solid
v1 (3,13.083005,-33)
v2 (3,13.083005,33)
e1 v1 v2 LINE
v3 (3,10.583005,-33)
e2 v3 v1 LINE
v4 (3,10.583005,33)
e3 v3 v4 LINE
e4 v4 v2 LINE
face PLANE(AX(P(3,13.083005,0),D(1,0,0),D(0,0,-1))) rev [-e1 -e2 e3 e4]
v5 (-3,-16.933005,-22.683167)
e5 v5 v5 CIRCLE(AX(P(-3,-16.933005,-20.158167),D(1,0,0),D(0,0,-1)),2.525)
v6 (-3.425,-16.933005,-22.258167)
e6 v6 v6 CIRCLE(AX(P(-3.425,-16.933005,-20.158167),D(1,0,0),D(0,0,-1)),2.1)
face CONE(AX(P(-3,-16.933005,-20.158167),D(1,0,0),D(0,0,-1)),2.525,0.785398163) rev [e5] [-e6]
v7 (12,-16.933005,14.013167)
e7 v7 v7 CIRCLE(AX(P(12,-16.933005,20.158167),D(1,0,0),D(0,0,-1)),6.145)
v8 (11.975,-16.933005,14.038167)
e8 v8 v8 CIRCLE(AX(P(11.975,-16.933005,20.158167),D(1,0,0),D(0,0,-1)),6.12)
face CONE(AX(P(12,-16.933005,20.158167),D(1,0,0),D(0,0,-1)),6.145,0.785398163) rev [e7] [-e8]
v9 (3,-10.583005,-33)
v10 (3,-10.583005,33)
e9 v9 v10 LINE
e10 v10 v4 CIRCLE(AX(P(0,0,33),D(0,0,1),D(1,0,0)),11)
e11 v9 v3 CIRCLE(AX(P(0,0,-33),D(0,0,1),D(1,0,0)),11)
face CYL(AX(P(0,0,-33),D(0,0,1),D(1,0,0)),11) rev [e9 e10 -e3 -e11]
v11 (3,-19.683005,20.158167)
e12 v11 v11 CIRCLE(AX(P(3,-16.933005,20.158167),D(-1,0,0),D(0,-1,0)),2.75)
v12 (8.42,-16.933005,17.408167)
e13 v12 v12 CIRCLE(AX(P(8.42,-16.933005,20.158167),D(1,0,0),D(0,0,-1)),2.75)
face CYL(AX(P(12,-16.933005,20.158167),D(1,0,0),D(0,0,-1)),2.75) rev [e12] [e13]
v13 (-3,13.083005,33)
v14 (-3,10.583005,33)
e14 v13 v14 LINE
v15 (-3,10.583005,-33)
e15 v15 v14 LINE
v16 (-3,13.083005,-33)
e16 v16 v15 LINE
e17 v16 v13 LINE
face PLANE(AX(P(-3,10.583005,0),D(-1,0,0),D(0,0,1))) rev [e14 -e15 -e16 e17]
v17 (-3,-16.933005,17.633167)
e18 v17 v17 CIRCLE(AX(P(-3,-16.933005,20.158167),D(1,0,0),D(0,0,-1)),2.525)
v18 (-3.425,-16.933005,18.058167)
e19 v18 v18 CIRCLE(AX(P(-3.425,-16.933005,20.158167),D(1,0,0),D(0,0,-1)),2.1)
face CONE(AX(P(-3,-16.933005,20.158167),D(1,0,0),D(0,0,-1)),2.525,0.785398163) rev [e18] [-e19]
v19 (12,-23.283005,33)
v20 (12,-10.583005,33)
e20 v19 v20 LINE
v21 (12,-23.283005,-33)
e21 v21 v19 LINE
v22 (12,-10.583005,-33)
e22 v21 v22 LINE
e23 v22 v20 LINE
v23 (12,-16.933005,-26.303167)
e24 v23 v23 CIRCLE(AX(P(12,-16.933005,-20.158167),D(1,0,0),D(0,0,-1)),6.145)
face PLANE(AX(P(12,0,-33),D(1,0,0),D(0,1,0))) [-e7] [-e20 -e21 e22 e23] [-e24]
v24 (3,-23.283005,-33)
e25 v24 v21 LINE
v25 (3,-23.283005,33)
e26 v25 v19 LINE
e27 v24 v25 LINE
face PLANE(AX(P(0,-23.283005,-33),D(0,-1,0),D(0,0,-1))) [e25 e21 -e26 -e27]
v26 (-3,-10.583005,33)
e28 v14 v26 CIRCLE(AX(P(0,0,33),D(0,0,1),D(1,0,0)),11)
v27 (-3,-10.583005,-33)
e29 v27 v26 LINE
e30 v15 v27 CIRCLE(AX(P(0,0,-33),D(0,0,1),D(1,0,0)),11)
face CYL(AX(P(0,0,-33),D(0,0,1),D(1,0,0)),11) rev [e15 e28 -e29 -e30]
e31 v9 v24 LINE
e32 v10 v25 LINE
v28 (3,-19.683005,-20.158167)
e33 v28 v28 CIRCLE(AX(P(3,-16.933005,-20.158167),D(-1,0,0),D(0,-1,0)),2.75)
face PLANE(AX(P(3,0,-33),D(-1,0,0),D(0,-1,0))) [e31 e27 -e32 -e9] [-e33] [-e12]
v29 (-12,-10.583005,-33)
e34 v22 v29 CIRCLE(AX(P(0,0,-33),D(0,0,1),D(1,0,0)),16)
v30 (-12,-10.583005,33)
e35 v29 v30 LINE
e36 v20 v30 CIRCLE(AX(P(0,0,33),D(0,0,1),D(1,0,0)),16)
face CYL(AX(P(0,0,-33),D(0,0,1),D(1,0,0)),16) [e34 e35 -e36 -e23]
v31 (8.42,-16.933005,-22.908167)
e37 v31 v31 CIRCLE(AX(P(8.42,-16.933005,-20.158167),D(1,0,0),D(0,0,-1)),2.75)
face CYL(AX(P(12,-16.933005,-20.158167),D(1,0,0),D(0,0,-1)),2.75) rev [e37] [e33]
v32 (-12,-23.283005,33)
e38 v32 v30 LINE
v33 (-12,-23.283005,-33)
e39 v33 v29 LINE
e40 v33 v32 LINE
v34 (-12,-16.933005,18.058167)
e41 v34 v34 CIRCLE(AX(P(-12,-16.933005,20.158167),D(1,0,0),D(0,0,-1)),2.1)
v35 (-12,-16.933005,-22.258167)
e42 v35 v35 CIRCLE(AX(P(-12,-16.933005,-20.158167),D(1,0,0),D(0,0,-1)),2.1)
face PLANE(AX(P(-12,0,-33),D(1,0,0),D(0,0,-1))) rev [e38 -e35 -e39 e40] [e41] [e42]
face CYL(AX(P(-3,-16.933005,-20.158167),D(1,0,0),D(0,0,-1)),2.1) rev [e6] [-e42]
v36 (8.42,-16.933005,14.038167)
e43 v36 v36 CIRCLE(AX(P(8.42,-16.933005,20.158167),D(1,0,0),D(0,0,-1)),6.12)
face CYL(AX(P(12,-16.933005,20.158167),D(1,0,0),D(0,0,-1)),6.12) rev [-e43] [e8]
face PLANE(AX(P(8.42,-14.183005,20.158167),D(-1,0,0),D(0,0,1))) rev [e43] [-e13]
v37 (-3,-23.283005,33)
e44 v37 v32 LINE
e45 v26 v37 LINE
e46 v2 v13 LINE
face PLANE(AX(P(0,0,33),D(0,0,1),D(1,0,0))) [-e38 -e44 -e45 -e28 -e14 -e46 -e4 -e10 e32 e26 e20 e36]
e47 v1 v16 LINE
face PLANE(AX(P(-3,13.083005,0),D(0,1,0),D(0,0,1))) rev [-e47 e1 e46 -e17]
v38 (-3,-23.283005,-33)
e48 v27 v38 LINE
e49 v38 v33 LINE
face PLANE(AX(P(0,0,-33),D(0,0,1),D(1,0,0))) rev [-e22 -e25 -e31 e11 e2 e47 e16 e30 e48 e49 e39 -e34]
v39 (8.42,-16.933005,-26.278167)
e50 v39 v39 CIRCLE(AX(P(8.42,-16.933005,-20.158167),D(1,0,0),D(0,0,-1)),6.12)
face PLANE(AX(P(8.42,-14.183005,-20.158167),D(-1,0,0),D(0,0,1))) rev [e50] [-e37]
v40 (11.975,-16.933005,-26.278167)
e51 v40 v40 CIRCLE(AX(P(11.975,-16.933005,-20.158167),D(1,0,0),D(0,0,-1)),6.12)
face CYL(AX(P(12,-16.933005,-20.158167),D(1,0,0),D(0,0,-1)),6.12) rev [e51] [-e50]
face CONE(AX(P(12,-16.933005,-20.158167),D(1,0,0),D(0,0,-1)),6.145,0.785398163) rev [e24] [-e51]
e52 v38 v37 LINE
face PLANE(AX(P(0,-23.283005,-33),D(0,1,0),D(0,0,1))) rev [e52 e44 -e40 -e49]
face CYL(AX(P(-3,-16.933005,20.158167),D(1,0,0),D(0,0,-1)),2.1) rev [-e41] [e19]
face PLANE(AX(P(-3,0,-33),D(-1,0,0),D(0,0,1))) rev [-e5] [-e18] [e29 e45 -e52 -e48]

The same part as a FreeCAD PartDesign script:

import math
import FreeCAD as App
import Part
import Sketcher
Q = App.Units.Quantity

doc = App.newDocument("Part")
params = doc.addObject("Spreadsheet::Sheet", "Params")
for row, (alias, value) in enumerate([
    ("sketch1_diameter", "32 mm"),
    ("sketch1_diameter2", "22 mm"),
    ("pad1_length", "33 mm"),
    ("pad1_length2", "33 mm"),
    ("sketch2_width", "6 mm"),
    ("sketch2_height", "2.5 mm"),
    ("pocket1_length", "33 mm"),
    ("sketch3_radius", "16 mm"),
    ("sketch3_width", "9 mm"),
    ("sketch3_height", "12.7 mm"),
    ("pad2_length", "66 mm"),
    ("sketch4_width", "6 mm"),
    ("sketch5_width", "6.42 mm"),
    ("sketch5_height", "3.37 mm"),
    ("groove_angle", "360 deg"),
    ("groove2_angle", "360 deg"),
], start=1):
    params.set(f"A{row}", alias)
    params.set(f"B{row}", "=" + value)
    params.setAlias(f"B{row}", alias)

body = doc.addObject("PartDesign::Body", "Body")

sketch1 = body.newObject("Sketcher::SketchObject", "Sketch")
sketch1.AttachmentSupport = (doc.getObject("XY_Plane"), [""])
sketch1.MapMode = "FlatFace"
sketch1.addGeometry([
    Part.Circle(App.Vector(0, 0, 0), App.Vector(0, 0, 1), 16),
    Part.Circle(App.Vector(0, 0, 0), App.Vector(0, 0, 1), 11),
], False)
sketch1.addConstraint([
    Sketcher.Constraint("Coincident", 0, 3, -1, 1),
    Sketcher.Constraint("Coincident", 1, 3, -1, 1),
    Sketcher.Constraint("Diameter", 0, Q("32 mm")),
    Sketcher.Constraint("Diameter", 1, Q("22 mm")),
])
sketch1.setExpression("Constraints[2]", "Params.sketch1_diameter")
sketch1.setExpression("Constraints[3]", "Params.sketch1_diameter2")
pad1 = body.newObject("PartDesign::Pad", "Pad")
pad1.Profile = sketch1
pad1.Type = "TwoLengths"
pad1.setExpression("Length", "Params.pad1_length")
pad1.setExpression("Length2", "Params.pad1_length2")

sketch2 = body.newObject("Sketcher::SketchObject", "Sketch001")
sketch2.AttachmentSupport = (doc.getObject("XY_Plane"), [""])
sketch2.MapMode = "FlatFace"
sketch2.AttachmentOffset = App.Placement(App.Vector(0, 0, 33), App.Rotation())
sketch2.addGeometry([
    Part.LineSegment(App.Vector(-3, 13.1, 0), App.Vector(-3, 10.6, 0)),
    Part.LineSegment(App.Vector(-3, 10.6, 0), App.Vector(3, 10.6, 0)),
    Part.LineSegment(App.Vector(3, 10.6, 0), App.Vector(3, 13.1, 0)),
    Part.LineSegment(App.Vector(3, 13.1, 0), App.Vector(-3, 13.1, 0)),
], False)
sketch2.addConstraint([
    Sketcher.Constraint("Coincident", 0, 2, 1, 1),
    Sketcher.Constraint("Coincident", 1, 2, 2, 1),
    Sketcher.Constraint("Coincident", 2, 2, 3, 1),
    Sketcher.Constraint("Coincident", 3, 2, 0, 1),
    Sketcher.Constraint("Vertical", 0),
    Sketcher.Constraint("Horizontal", 1),
    Sketcher.Constraint("Vertical", 2),
    Sketcher.Constraint("Horizontal", 3),
    Sketcher.Constraint("DistanceX", 1, 1, 1, 2, Q("6 mm")),
    Sketcher.Constraint("DistanceY", 0, 2, 0, 1, Q("2.5 mm")),
    Sketcher.Constraint("DistanceX", 0, 2, -1, 1, Q("3 mm")),
    Sketcher.Constraint("DistanceY", -1, 1, 0, 2, Q("10.583005 mm")),
])
sketch2.setExpression("Constraints[8]", "Params.sketch2_width")
sketch2.setExpression("Constraints[9]", "Params.sketch2_height")
pocket1 = body.newObject("PartDesign::Pocket", "Pocket")
pocket1.Profile = sketch2
pocket1.setExpression("Length", "Params.pocket1_length")
doc.recompute()

mirrored = body.newObject("PartDesign::Mirrored", "Mirrored")
mirrored.Originals = [pocket1]
mirrored.MirrorPlane = (doc.getObject("XY_Plane"), [""])
body.Tip = mirrored

sketch3 = body.newObject("Sketcher::SketchObject", "Sketch002")
sketch3.AttachmentSupport = (doc.getObject("XY_Plane"), [""])
sketch3.MapMode = "FlatFace"
sketch3.AttachmentOffset = App.Placement(App.Vector(0, 0, 33), App.Rotation())
sketch3.addGeometry([
    Part.LineSegment(App.Vector(-3, -23, 0), App.Vector(-3, -16, 0)),
    Part.ArcOfCircle(Part.Circle(App.Vector(0, 0, 0), App.Vector(0, 0, 1), 16), math.radians(-139), math.radians(-101)),
    Part.LineSegment(App.Vector(-12, -11, 0), App.Vector(-12, -23, 0)),
    Part.LineSegment(App.Vector(-12, -23, 0), App.Vector(-3, -23, 0)),
    Part.ArcOfCircle(Part.Circle(App.Vector(0, 0, 0), App.Vector(0, 0, 1), 16), math.radians(-79), math.radians(-41)),
    Part.LineSegment(App.Vector(3, -16, 0), App.Vector(3, -23, 0)),
    Part.LineSegment(App.Vector(3, -23, 0), App.Vector(12, -23, 0)),
    Part.LineSegment(App.Vector(12, -23, 0), App.Vector(12, -11, 0)),
], False)
sketch3.addConstraint([
    Sketcher.Constraint("Coincident", 0, 2, 1, 2),
    Sketcher.Constraint("Coincident", 1, 1, 2, 1),
    Sketcher.Constraint("Coincident", 2, 2, 3, 1),
    Sketcher.Constraint("Coincident", 3, 2, 0, 1),
    Sketcher.Constraint("Coincident", 4, 1, 5, 1),
    Sketcher.Constraint("Coincident", 5, 2, 6, 1),
    Sketcher.Constraint("Coincident", 6, 2, 7, 1),
    Sketcher.Constraint("Coincident", 7, 2, 4, 2),
    Sketcher.Constraint("Vertical", 0),
    Sketcher.Constraint("Vertical", 2),
    Sketcher.Constraint("Horizontal", 3),
    Sketcher.Constraint("Vertical", 5),
    Sketcher.Constraint("Horizontal", 6),
    Sketcher.Constraint("Vertical", 7),
    Sketcher.Constraint("Coincident", 1, 3, -1, 1),
    Sketcher.Constraint("Coincident", 4, 3, -1, 1),
    Sketcher.Constraint("Equal", 1, 4),
    Sketcher.Constraint("Symmetric", 3, 2, 5, 2, -2),
    Sketcher.Constraint("Horizontal", 1, 1, 7, 2),
    Sketcher.Constraint("Radius", 1, Q("16 mm")),
    Sketcher.Constraint("DistanceX", 3, 1, 3, 2, Q("9 mm")),
    Sketcher.Constraint("DistanceY", 2, 2, 2, 1, Q("12.7 mm")),
    Sketcher.Constraint("DistanceX", 0, 2, -1, 1, Q("3 mm")),
])
sketch3.setExpression("Constraints[19]", "Params.sketch3_radius")
sketch3.setExpression("Constraints[20]", "Params.sketch3_width")
sketch3.setExpression("Constraints[21]", "Params.sketch3_height")
pad2 = body.newObject("PartDesign::Pad", "Pad001")
pad2.Profile = sketch3
pad2.setExpression("Length", "Params.pad2_length")
pad2.Reversed = True

sketch4 = body.newObject("Sketcher::SketchObject", "Sketch003")
sketch4.AttachmentSupport = (doc.getObject("XY_Plane"), [""])
sketch4.MapMode = "FlatFace"
sketch4.AttachmentOffset = App.Placement(App.Vector(0, 0, 33), App.Rotation())
sketch4.addGeometry([
    Part.LineSegment(App.Vector(-3, -11, 0), App.Vector(-3, -16, 0)),
    Part.LineSegment(App.Vector(-3, -16, 0), App.Vector(3, -16, 0)),
    Part.LineSegment(App.Vector(3, -16, 0), App.Vector(3, -11, 0)),
    Part.LineSegment(App.Vector(3, -11, 0), App.Vector(-3, -11, 0)),
], False)
sketch4.addConstraint([
    Sketcher.Constraint("Coincident", 0, 2, 1, 1),
    Sketcher.Constraint("Coincident", 1, 2, 2, 1),
    Sketcher.Constraint("Coincident", 2, 2, 3, 1),
    Sketcher.Constraint("Coincident", 3, 2, 0, 1),
    Sketcher.Constraint("Vertical", 0),
    Sketcher.Constraint("Horizontal", 1),
    Sketcher.Constraint("Vertical", 2),
    Sketcher.Constraint("Horizontal", 3),
    Sketcher.Constraint("DistanceX", 1, 1, 1, 2, Q("6 mm")),
    Sketcher.Constraint("DistanceX", 0, 2, -1, 1, Q("3 mm")),
    Sketcher.Constraint("DistanceY", 0, 2, 0, 1, Q("5.688534 mm")),
    Sketcher.Constraint("DistanceY", 0, 2, -1, 1, Q("16.27154 mm")),
])
sketch4.setExpression("Constraints[8]", "Params.sketch4_width")
pocket2 = body.newObject("PartDesign::Pocket", "Pocket001")
pocket2.Profile = sketch4
pocket2.Type = "ThroughAll"

sketch5 = body.newObject("Sketcher::SketchObject", "Sketch004")
sketch5.AttachmentSupport = (doc.getObject("XZ_Plane"), [""])
sketch5.MapMode = "FlatFace"
sketch5.AttachmentOffset = App.Placement(App.Vector(0, 0, 16.933005), App.Rotation())
sketch5.addGeometry([
    Part.LineSegment(App.Vector(0.348, 20.158, 0), App.Vector(12, 20.158, 0)),
    Part.LineSegment(App.Vector(12, 20.158, 0), App.Vector(12, 14.013, 0)),
    Part.LineSegment(App.Vector(12, 14.013, 0), App.Vector(11.975, 14.038, 0)),
    Part.LineSegment(App.Vector(11.975, 14.038, 0), App.Vector(8.42, 14.038, 0)),
    Part.LineSegment(App.Vector(8.42, 14.038, 0), App.Vector(8.42, 17.408, 0)),
    Part.LineSegment(App.Vector(8.42, 17.408, 0), App.Vector(2, 17.408, 0)),
    Part.LineSegment(App.Vector(2, 17.408, 0), App.Vector(0.348, 20.158, 0)),
], False)
sketch5.addGeometry(Part.LineSegment(App.Vector(12, 20.158, 0), App.Vector(0.348, 20.158, 0)), True)
sketch5.addConstraint([
    Sketcher.Constraint("Coincident", 0, 2, 1, 1),
    Sketcher.Constraint("Coincident", 1, 2, 2, 1),
    Sketcher.Constraint("Coincident", 2, 2, 3, 1),
    Sketcher.Constraint("Coincident", 3, 2, 4, 1),
    Sketcher.Constraint("Coincident", 4, 2, 5, 1),
    Sketcher.Constraint("Coincident", 5, 2, 6, 1),
    Sketcher.Constraint("Coincident", 6, 2, 0, 1),
    Sketcher.Constraint("Horizontal", 0),
    Sketcher.Constraint("Vertical", 1),
    Sketcher.Constraint("Horizontal", 3),
    Sketcher.Constraint("Vertical", 4),
    Sketcher.Constraint("Horizontal", 5),
    Sketcher.Constraint("Horizontal", 7),
    Sketcher.Constraint("Coincident", 7, 1, 0, 2),
    Sketcher.Constraint("Equal", 0, 7),
    Sketcher.Constraint("Angle", 2, Q("135 deg")),
    Sketcher.Constraint("Angle", 6, Q("121 deg")),
    Sketcher.Constraint("DistanceX", -1, 1, 0, 2, Q("12 mm")),
    Sketcher.Constraint("DistanceX", -1, 1, 5, 2, Q("2 mm")),
    Sketcher.Constraint("DistanceX", 5, 2, 5, 1, Q("6.42 mm")),
    Sketcher.Constraint("DistanceY", 4, 1, 4, 2, Q("3.37 mm")),
    Sketcher.Constraint("DistanceX", 3, 2, 3, 1, Q("3.555 mm")),
    Sketcher.Constraint("DistanceY", 1, 2, 1, 1, Q("6.145 mm")),
    Sketcher.Constraint("DistanceY", -1, 1, 0, 2, Q("20.158167 mm")),
])
sketch5.setExpression("Constraints[19]", "Params.sketch5_width")
sketch5.setExpression("Constraints[20]", "Params.sketch5_height")
groove = body.newObject("PartDesign::Groove", "Groove")
groove.Profile = sketch5
groove.ReferenceAxis = (sketch5, ["Axis0"])
groove.setExpression("Angle", "Params.groove_angle")
doc.recompute()

mirrored2 = body.newObject("PartDesign::Mirrored", "Mirrored001")
mirrored2.Originals = [groove]
mirrored2.MirrorPlane = (doc.getObject("XY_Plane"), [""])
body.Tip = mirrored2

sketch6 = body.newObject("Sketcher::SketchObject", "Sketch005")
sketch6.AttachmentSupport = (doc.getObject("XZ_Plane"), [""])
sketch6.MapMode = "FlatFace"
sketch6.AttachmentOffset = App.Placement(App.Vector(0, 0, 16.933005), App.Rotation())
sketch6.addGeometry([
    Part.LineSegment(App.Vector(-16.7, 20.2, 0), App.Vector(-3, 20.2, 0)),
    Part.LineSegment(App.Vector(-3, 20.2, 0), App.Vector(-3, 17.6, 0)),
    Part.LineSegment(App.Vector(-3, 17.6, 0), App.Vector(-3.4, 18.1, 0)),
    Part.LineSegment(App.Vector(-3.4, 18.1, 0), App.Vector(-15.4, 18.1, 0)),
    Part.LineSegment(App.Vector(-15.4, 18.1, 0), App.Vector(-16.7, 20.2, 0)),
], False)
sketch6.addGeometry(Part.LineSegment(App.Vector(-3, 20.2, 0), App.Vector(-16.7, 20.2, 0)), True)
sketch6.addConstraint([
    Sketcher.Constraint("Coincident", 0, 2, 1, 1),
    Sketcher.Constraint("Coincident", 1, 2, 2, 1),
    Sketcher.Constraint("Coincident", 2, 2, 3, 1),
    Sketcher.Constraint("Coincident", 3, 2, 4, 1),
    Sketcher.Constraint("Coincident", 4, 2, 0, 1),
    Sketcher.Constraint("Horizontal", 0),
    Sketcher.Constraint("Vertical", 1),
    Sketcher.Constraint("Horizontal", 3),
    Sketcher.Constraint("Horizontal", 5),
    Sketcher.Constraint("Coincident", 5, 1, 0, 2),
    Sketcher.Constraint("Equal", 0, 5),
    Sketcher.Constraint("Angle", 2, Q("135 deg")),
    Sketcher.Constraint("Angle", 4, Q("121 deg")),
    Sketcher.Constraint("DistanceX", 0, 2, -1, 1, Q("3 mm")),
    Sketcher.Constraint("DistanceX", 3, 2, -1, 1, Q("15.4 mm")),
    Sketcher.Constraint("DistanceY", 2, 2, 0, 2, Q("2.1 mm")),
    Sketcher.Constraint("DistanceX", 3, 2, 3, 1, Q("11.975 mm")),
    Sketcher.Constraint("DistanceY", -1, 1, 0, 2, Q("20.158167 mm")),
])
groove2 = body.newObject("PartDesign::Groove", "Groove001")
groove2.Profile = sketch6
groove2.ReferenceAxis = (sketch6, ["Axis0"])
groove2.setExpression("Angle", "Params.groove2_angle")
doc.recompute()

mirrored3 = body.newObject("PartDesign::Mirrored", "Mirrored002")
mirrored3.Originals = [groove2]
mirrored3.MirrorPlane = (doc.getObject("XY_Plane"), [""])
body.Tip = mirrored3

doc.recompute()
